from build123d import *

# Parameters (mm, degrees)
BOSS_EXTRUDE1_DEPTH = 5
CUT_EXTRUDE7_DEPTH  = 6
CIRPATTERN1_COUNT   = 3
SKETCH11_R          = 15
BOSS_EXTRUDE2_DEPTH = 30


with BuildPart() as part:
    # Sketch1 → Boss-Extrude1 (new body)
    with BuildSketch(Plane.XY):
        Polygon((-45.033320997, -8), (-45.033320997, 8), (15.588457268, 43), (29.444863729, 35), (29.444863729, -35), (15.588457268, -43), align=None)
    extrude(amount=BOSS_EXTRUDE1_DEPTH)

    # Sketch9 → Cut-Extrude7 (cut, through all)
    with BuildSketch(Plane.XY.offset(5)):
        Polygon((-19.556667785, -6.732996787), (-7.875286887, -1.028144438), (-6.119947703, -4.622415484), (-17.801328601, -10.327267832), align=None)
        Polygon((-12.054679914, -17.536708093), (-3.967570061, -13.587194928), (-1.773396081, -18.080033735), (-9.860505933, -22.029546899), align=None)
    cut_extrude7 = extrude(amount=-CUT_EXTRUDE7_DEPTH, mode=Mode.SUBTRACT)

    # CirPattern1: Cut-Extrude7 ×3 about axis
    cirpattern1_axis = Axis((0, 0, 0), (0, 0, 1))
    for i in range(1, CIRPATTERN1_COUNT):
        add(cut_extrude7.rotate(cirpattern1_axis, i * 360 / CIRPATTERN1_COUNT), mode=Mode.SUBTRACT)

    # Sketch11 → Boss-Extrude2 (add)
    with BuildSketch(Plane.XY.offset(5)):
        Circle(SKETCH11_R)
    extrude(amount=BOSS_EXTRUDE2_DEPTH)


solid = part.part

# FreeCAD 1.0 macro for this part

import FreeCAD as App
import Part
import Sketcher

V = App.Vector
Q = App.Units.Quantity

doc = App.newDocument("Part")
body = doc.addObject("PartDesign::Body", "Body")

# Sketch on XY plane
sketch1 = doc.addObject("Sketcher::SketchObject", "Sketch")
body.addObject(sketch1)
sketch1.AttachmentSupport = (doc.XY_Plane, [""])
sketch1.MapMode = "FlatFace"
sketch1.addGeometry([
    Part.LineSegment(V(-45, 8, 0), V(-45, -8, 0)),  # 0
    Part.LineSegment(V(-45, -8, 0), V(16, -43, 0)),  # 1
    Part.LineSegment(V(16, -43, 0), V(29, -35, 0)),  # 2
    Part.LineSegment(V(29, -35, 0), V(29, 35, 0)),  # 3
    Part.LineSegment(V(29, 35, 0), V(16, 43, 0)),  # 4
    Part.LineSegment(V(16, 43, 0), V(-45, 8, 0)),  # 5
], False)
sketch1.addConstraint([
    Sketcher.Constraint("Coincident", 0, 2, 1, 1),
    Sketcher.Constraint("Coincident", 1, 2, 2, 1),
    Sketcher.Constraint("Coincident", 2, 2, 3, 1),
    Sketcher.Constraint("Coincident", 3, 2, 4, 1),
    Sketcher.Constraint("Coincident", 4, 2, 5, 1),
    Sketcher.Constraint("Coincident", 5, 2, 0, 1),
    Sketcher.Constraint("Vertical", 0),
    Sketcher.Constraint("Vertical", 3),
    Sketcher.Constraint("Symmetric", 1, 2, 4, 2, -1),
    Sketcher.Constraint("Parallel", 1, 4),
    Sketcher.Constraint("Parallel", 2, 5),
    Sketcher.Constraint("Equal", 2, 4),
    Sketcher.Constraint("DistanceY", 0, 2, 0, 1, Q("16 mm")),
    Sketcher.Constraint("DistanceY", 3, 1, 3, 2, Q("70 mm")),
    Sketcher.Constraint("Angle", 1, Q("-30 deg")),
    Sketcher.Constraint("Distance", 1, Q("70 mm")),
    Sketcher.Constraint("DistanceX", 0, 2, -1, 1, Q("45.033321 mm")),
])
pad1 = doc.addObject("PartDesign::Pad", "Pad")
body.addObject(pad1)
pad1.Profile = sketch1
pad1.Length = 5

# Sketch on XY plane
sketch2 = doc.addObject("Sketcher::SketchObject", "Sketch001")
body.addObject(sketch2)
sketch2.AttachmentSupport = (doc.XY_Plane, [""])
sketch2.MapMode = "FlatFace"
sketch2.AttachmentOffset = App.Placement(V(0, 0, 5), App.Rotation())
sketch2.addGeometry([
    Part.LineSegment(V(-7.9, -1, 0), V(-19.6, -6.7, 0)),  # 0
    Part.LineSegment(V(-19.6, -6.7, 0), V(-17.8, -10.3, 0)),  # 1
    Part.LineSegment(V(-17.8, -10.3, 0), V(-6.1, -4.6, 0)),  # 2
    Part.LineSegment(V(-6.1, -4.6, 0), V(-7.9, -1, 0)),  # 3
    Part.LineSegment(V(-4, -13.6, 0), V(-12.1, -17.5, 0)),  # 4
    Part.LineSegment(V(-12.1, -17.5, 0), V(-9.9, -22, 0)),  # 5
    Part.LineSegment(V(-9.9, -22, 0), V(-1.8, -18.1, 0)),  # 6
    Part.LineSegment(V(-1.8, -18.1, 0), V(-4, -13.6, 0)),  # 7
], False)
sketch2.addConstraint([
    Sketcher.Constraint("Coincident", 0, 2, 1, 1),
    Sketcher.Constraint("Coincident", 1, 2, 2, 1),
    Sketcher.Constraint("Coincident", 2, 2, 3, 1),
    Sketcher.Constraint("Coincident", 3, 2, 0, 1),
    Sketcher.Constraint("Coincident", 4, 2, 5, 1),
    Sketcher.Constraint("Coincident", 5, 2, 6, 1),
    Sketcher.Constraint("Coincident", 6, 2, 7, 1),
    Sketcher.Constraint("Coincident", 7, 2, 4, 1),
    Sketcher.Constraint("Perpendicular", 0, 1),
    Sketcher.Constraint("Perpendicular", 1, 2),
    Sketcher.Constraint("Perpendicular", 2, 3),
    Sketcher.Constraint("Perpendicular", 3, 4),
    Sketcher.Constraint("Perpendicular", 4, 5),
    Sketcher.Constraint("Perpendicular", 5, 6),
    Sketcher.Constraint("Perpendicular", 6, 7),
    Sketcher.Constraint("Distance", 0, Q("13 mm")),
    Sketcher.Constraint("Distance", 1, Q("4 mm")),
    Sketcher.Constraint("Distance", 4, Q("9 mm")),
    Sketcher.Constraint("Distance", 5, Q("5 mm")),
    Sketcher.Constraint("DistanceX", 1, 2, -1, 1, Q("17.801329 mm")),
    Sketcher.Constraint("DistanceX", 4, 2, -1, 1, Q("12.05468 mm")),
    Sketcher.Constraint("DistanceY", 4, 2, -1, 1, Q("17.536708 mm")),
    Sketcher.Constraint("DistanceX", 7, 2, -1, 1, Q("3.96757 mm")),
    Sketcher.Constraint("DistanceY", 4, 2, 1, 2, Q("7.20944 mm")),
])
pocket1 = doc.addObject("PartDesign::Pocket", "Pocket")
body.addObject(pocket1)
pocket1.Profile = sketch2
pocket1.Type = "ThroughAll"
doc.recompute()

polarpattern = doc.addObject("PartDesign::PolarPattern", "PolarPattern")
body.addObject(polarpattern)
polarpattern.Originals = [pocket1]
polarpattern.Axis = (doc.Z_Axis, [""])
polarpattern.Angle = 360
polarpattern.Occurrences = 3
body.Tip = polarpattern

# Sketch on XY plane
sketch3 = doc.addObject("Sketcher::SketchObject", "Sketch002")
body.addObject(sketch3)
sketch3.AttachmentSupport = (doc.XY_Plane, [""])
sketch3.MapMode = "FlatFace"
sketch3.AttachmentOffset = App.Placement(V(0, 0, 5), App.Rotation())
sketch3.addGeometry(Part.Circle(V(0, 0, 0), V(0, 0, 1), 15), False)
sketch3.addConstraint([
    Sketcher.Constraint("Coincident", 0, 3, -1, 1),
    Sketcher.Constraint("Diameter", 0, Q("30 mm")),
])
pad2 = doc.addObject("PartDesign::Pad", "Pad001")
body.addObject(pad2)
pad2.Profile = sketch3
pad2.Length = 30

doc.recompute()
